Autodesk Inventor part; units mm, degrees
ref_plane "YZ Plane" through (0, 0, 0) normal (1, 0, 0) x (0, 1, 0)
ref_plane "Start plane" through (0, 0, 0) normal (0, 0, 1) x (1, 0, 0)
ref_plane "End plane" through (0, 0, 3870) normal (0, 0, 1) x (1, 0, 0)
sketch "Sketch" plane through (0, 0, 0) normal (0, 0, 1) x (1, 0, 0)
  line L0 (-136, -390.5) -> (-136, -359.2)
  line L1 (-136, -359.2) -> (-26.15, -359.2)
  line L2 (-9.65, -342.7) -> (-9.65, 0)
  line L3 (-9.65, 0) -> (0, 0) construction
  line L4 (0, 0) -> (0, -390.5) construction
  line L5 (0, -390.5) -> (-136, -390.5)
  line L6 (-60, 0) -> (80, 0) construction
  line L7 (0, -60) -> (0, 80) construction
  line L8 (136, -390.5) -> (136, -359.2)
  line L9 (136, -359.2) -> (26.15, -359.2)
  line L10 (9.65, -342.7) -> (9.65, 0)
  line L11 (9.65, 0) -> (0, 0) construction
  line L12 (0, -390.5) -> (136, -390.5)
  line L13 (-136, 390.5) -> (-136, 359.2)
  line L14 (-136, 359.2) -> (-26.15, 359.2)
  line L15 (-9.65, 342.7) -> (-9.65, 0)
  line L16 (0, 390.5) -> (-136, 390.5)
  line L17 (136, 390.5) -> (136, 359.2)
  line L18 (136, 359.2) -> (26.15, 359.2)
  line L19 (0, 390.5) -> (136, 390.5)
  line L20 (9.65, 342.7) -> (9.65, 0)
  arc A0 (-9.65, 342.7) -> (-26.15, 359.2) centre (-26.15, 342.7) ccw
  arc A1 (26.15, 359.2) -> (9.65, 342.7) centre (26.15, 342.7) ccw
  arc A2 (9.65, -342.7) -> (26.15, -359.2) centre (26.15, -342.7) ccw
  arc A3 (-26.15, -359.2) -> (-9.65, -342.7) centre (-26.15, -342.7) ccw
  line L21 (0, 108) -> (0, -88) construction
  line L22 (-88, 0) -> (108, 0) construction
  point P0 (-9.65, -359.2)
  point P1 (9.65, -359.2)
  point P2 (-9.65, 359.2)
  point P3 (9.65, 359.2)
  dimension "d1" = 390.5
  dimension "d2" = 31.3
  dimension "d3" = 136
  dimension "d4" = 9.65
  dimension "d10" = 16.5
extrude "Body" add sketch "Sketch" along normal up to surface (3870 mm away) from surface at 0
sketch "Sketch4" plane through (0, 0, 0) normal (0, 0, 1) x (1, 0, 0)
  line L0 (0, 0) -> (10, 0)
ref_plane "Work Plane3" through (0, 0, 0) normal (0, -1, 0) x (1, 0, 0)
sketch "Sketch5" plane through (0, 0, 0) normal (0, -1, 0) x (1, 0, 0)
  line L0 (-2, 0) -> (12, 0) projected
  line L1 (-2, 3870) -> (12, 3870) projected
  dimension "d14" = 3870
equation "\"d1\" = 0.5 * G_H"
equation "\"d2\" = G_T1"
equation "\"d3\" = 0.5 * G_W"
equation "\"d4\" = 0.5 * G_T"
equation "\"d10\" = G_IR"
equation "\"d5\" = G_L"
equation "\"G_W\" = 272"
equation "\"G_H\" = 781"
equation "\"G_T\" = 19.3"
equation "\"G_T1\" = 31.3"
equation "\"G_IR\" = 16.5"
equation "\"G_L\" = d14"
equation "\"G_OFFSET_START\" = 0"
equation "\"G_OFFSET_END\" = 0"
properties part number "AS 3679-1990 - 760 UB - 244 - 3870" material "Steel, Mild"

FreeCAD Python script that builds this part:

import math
import FreeCAD as App
import Part
import Sketcher

doc = App.newDocument("Part")
body = doc.addObject("PartDesign::Body", "Body")

# Sketch on XY plane
sketch1 = body.newObject("Sketcher::SketchObject", "Sketch")
sketch1.AttachmentSupport = (doc.getObject("XY_Plane"), [""])
sketch1.MapMode = "FlatFace"
sketch1.addGeometry([
    Part.LineSegment(App.Vector(-136, -359.2, 0), App.Vector(-136, -390.5, 0)),  # 0
    Part.LineSegment(App.Vector(-136, -390.5, 0), App.Vector(136, -390.5, 0)),  # 1
    Part.LineSegment(App.Vector(136, -390.5, 0), App.Vector(136, -359.2, 0)),  # 2
    Part.LineSegment(App.Vector(136, -359.2, 0), App.Vector(26.15, -359.2, 0)),  # 3
    Part.ArcOfCircle(Part.Circle(App.Vector(26.15, -342.7, 0), App.Vector(0, 0, 1), 16.5), math.radians(180), math.radians(270)),  # 4
    Part.LineSegment(App.Vector(9.65, -342.7, 0), App.Vector(9.65, 342.7, 0)),  # 5
    Part.ArcOfCircle(Part.Circle(App.Vector(26.15, 342.7, 0), App.Vector(0, 0, 1), 16.5), math.radians(90), math.radians(180)),  # 6
    Part.LineSegment(App.Vector(26.15, 359.2, 0), App.Vector(136, 359.2, 0)),  # 7
    Part.LineSegment(App.Vector(136, 359.2, 0), App.Vector(136, 390.5, 0)),  # 8
    Part.LineSegment(App.Vector(136, 390.5, 0), App.Vector(-136, 390.5, 0)),  # 9
    Part.LineSegment(App.Vector(-136, 390.5, 0), App.Vector(-136, 359.2, 0)),  # 10
    Part.LineSegment(App.Vector(-136, 359.2, 0), App.Vector(-26.15, 359.2, 0)),  # 11
    Part.ArcOfCircle(Part.Circle(App.Vector(-26.15, 342.7, 0), App.Vector(0, 0, 1), 16.5), math.radians(0), math.radians(90)),  # 12
    Part.LineSegment(App.Vector(-9.65, 342.7, 0), App.Vector(-9.65, -342.7, 0)),  # 13
    Part.ArcOfCircle(Part.Circle(App.Vector(-26.15, -342.7, 0), App.Vector(0, 0, 1), 16.5), math.radians(-90), math.radians(0)),  # 14
    Part.LineSegment(App.Vector(-26.15, -359.2, 0), App.Vector(-136, -359.2, 0)),  # 15
], False)
sketch1.addConstraint([
    Sketcher.Constraint("Coincident", 0, 2, 1, 1),
    Sketcher.Constraint("Coincident", 1, 2, 2, 1),
    Sketcher.Constraint("Coincident", 2, 2, 3, 1),
    Sketcher.Constraint("Tangent", 3, 2, 4, 2),
    Sketcher.Constraint("Tangent", 4, 1, 5, 1),
    Sketcher.Constraint("Tangent", 5, 2, 6, 2),
    Sketcher.Constraint("Tangent", 6, 1, 7, 1),
    Sketcher.Constraint("Coincident", 7, 2, 8, 1),
    Sketcher.Constraint("Coincident", 8, 2, 9, 1),
    Sketcher.Constraint("Coincident", 9, 2, 10, 1),
    Sketcher.Constraint("Coincident", 10, 2, 11, 1),
    Sketcher.Constraint("Tangent", 11, 2, 12, 2),
    Sketcher.Constraint("Tangent", 12, 1, 13, 1),
    Sketcher.Constraint("Tangent", 13, 2, 14, 2),
    Sketcher.Constraint("Tangent", 14, 1, 15, 1),
    Sketcher.Constraint("Coincident", 15, 2, 0, 1),
    Sketcher.Constraint("Vertical", 0),
    Sketcher.Constraint("Horizontal", 1),
    Sketcher.Constraint("Vertical", 2),
    Sketcher.Constraint("Horizontal", 3),
    Sketcher.Constraint("Vertical", 5),
    Sketcher.Constraint("Horizontal", 7),
    Sketcher.Constraint("Vertical", 8),
    Sketcher.Constraint("Horizontal", 9),
    Sketcher.Constraint("Vertical", 10),
    Sketcher.Constraint("Horizontal", 11),
    Sketcher.Constraint("Vertical", 13),
    Sketcher.Constraint("Horizontal", 15),
    Sketcher.Constraint("Equal", 4, 6),
    Sketcher.Constraint("Equal", 6, 12),
    Sketcher.Constraint("Equal", 12, 14),
    Sketcher.Constraint("Symmetric", 4, 3, 12, 3, -1, 1),
    Sketcher.Constraint("Symmetric", 0, 2, 8, 2, -1, 1),
    Sketcher.Constraint("Symmetric", 7, 2, 10, 2, -2),
    Sketcher.Constraint("Symmetric", 2, 2, 15, 2, -2),
    Sketcher.Constraint("Radius", 4, 16.5),
    Sketcher.Constraint("DistanceY", 0, 2, 0, 1, 31.3),
    Sketcher.Constraint("DistanceX", 0, 2, -1, 1, 136.0),
    Sketcher.Constraint("DistanceY", 0, 2, -1, 1, 390.5),
    Sketcher.Constraint("DistanceX", -1, 1, 4, 1, 9.65),
])
pad1 = body.newObject("PartDesign::Pad", "Pad")
pad1.Profile = sketch1
pad1.Length = 3870

doc.recompute()
